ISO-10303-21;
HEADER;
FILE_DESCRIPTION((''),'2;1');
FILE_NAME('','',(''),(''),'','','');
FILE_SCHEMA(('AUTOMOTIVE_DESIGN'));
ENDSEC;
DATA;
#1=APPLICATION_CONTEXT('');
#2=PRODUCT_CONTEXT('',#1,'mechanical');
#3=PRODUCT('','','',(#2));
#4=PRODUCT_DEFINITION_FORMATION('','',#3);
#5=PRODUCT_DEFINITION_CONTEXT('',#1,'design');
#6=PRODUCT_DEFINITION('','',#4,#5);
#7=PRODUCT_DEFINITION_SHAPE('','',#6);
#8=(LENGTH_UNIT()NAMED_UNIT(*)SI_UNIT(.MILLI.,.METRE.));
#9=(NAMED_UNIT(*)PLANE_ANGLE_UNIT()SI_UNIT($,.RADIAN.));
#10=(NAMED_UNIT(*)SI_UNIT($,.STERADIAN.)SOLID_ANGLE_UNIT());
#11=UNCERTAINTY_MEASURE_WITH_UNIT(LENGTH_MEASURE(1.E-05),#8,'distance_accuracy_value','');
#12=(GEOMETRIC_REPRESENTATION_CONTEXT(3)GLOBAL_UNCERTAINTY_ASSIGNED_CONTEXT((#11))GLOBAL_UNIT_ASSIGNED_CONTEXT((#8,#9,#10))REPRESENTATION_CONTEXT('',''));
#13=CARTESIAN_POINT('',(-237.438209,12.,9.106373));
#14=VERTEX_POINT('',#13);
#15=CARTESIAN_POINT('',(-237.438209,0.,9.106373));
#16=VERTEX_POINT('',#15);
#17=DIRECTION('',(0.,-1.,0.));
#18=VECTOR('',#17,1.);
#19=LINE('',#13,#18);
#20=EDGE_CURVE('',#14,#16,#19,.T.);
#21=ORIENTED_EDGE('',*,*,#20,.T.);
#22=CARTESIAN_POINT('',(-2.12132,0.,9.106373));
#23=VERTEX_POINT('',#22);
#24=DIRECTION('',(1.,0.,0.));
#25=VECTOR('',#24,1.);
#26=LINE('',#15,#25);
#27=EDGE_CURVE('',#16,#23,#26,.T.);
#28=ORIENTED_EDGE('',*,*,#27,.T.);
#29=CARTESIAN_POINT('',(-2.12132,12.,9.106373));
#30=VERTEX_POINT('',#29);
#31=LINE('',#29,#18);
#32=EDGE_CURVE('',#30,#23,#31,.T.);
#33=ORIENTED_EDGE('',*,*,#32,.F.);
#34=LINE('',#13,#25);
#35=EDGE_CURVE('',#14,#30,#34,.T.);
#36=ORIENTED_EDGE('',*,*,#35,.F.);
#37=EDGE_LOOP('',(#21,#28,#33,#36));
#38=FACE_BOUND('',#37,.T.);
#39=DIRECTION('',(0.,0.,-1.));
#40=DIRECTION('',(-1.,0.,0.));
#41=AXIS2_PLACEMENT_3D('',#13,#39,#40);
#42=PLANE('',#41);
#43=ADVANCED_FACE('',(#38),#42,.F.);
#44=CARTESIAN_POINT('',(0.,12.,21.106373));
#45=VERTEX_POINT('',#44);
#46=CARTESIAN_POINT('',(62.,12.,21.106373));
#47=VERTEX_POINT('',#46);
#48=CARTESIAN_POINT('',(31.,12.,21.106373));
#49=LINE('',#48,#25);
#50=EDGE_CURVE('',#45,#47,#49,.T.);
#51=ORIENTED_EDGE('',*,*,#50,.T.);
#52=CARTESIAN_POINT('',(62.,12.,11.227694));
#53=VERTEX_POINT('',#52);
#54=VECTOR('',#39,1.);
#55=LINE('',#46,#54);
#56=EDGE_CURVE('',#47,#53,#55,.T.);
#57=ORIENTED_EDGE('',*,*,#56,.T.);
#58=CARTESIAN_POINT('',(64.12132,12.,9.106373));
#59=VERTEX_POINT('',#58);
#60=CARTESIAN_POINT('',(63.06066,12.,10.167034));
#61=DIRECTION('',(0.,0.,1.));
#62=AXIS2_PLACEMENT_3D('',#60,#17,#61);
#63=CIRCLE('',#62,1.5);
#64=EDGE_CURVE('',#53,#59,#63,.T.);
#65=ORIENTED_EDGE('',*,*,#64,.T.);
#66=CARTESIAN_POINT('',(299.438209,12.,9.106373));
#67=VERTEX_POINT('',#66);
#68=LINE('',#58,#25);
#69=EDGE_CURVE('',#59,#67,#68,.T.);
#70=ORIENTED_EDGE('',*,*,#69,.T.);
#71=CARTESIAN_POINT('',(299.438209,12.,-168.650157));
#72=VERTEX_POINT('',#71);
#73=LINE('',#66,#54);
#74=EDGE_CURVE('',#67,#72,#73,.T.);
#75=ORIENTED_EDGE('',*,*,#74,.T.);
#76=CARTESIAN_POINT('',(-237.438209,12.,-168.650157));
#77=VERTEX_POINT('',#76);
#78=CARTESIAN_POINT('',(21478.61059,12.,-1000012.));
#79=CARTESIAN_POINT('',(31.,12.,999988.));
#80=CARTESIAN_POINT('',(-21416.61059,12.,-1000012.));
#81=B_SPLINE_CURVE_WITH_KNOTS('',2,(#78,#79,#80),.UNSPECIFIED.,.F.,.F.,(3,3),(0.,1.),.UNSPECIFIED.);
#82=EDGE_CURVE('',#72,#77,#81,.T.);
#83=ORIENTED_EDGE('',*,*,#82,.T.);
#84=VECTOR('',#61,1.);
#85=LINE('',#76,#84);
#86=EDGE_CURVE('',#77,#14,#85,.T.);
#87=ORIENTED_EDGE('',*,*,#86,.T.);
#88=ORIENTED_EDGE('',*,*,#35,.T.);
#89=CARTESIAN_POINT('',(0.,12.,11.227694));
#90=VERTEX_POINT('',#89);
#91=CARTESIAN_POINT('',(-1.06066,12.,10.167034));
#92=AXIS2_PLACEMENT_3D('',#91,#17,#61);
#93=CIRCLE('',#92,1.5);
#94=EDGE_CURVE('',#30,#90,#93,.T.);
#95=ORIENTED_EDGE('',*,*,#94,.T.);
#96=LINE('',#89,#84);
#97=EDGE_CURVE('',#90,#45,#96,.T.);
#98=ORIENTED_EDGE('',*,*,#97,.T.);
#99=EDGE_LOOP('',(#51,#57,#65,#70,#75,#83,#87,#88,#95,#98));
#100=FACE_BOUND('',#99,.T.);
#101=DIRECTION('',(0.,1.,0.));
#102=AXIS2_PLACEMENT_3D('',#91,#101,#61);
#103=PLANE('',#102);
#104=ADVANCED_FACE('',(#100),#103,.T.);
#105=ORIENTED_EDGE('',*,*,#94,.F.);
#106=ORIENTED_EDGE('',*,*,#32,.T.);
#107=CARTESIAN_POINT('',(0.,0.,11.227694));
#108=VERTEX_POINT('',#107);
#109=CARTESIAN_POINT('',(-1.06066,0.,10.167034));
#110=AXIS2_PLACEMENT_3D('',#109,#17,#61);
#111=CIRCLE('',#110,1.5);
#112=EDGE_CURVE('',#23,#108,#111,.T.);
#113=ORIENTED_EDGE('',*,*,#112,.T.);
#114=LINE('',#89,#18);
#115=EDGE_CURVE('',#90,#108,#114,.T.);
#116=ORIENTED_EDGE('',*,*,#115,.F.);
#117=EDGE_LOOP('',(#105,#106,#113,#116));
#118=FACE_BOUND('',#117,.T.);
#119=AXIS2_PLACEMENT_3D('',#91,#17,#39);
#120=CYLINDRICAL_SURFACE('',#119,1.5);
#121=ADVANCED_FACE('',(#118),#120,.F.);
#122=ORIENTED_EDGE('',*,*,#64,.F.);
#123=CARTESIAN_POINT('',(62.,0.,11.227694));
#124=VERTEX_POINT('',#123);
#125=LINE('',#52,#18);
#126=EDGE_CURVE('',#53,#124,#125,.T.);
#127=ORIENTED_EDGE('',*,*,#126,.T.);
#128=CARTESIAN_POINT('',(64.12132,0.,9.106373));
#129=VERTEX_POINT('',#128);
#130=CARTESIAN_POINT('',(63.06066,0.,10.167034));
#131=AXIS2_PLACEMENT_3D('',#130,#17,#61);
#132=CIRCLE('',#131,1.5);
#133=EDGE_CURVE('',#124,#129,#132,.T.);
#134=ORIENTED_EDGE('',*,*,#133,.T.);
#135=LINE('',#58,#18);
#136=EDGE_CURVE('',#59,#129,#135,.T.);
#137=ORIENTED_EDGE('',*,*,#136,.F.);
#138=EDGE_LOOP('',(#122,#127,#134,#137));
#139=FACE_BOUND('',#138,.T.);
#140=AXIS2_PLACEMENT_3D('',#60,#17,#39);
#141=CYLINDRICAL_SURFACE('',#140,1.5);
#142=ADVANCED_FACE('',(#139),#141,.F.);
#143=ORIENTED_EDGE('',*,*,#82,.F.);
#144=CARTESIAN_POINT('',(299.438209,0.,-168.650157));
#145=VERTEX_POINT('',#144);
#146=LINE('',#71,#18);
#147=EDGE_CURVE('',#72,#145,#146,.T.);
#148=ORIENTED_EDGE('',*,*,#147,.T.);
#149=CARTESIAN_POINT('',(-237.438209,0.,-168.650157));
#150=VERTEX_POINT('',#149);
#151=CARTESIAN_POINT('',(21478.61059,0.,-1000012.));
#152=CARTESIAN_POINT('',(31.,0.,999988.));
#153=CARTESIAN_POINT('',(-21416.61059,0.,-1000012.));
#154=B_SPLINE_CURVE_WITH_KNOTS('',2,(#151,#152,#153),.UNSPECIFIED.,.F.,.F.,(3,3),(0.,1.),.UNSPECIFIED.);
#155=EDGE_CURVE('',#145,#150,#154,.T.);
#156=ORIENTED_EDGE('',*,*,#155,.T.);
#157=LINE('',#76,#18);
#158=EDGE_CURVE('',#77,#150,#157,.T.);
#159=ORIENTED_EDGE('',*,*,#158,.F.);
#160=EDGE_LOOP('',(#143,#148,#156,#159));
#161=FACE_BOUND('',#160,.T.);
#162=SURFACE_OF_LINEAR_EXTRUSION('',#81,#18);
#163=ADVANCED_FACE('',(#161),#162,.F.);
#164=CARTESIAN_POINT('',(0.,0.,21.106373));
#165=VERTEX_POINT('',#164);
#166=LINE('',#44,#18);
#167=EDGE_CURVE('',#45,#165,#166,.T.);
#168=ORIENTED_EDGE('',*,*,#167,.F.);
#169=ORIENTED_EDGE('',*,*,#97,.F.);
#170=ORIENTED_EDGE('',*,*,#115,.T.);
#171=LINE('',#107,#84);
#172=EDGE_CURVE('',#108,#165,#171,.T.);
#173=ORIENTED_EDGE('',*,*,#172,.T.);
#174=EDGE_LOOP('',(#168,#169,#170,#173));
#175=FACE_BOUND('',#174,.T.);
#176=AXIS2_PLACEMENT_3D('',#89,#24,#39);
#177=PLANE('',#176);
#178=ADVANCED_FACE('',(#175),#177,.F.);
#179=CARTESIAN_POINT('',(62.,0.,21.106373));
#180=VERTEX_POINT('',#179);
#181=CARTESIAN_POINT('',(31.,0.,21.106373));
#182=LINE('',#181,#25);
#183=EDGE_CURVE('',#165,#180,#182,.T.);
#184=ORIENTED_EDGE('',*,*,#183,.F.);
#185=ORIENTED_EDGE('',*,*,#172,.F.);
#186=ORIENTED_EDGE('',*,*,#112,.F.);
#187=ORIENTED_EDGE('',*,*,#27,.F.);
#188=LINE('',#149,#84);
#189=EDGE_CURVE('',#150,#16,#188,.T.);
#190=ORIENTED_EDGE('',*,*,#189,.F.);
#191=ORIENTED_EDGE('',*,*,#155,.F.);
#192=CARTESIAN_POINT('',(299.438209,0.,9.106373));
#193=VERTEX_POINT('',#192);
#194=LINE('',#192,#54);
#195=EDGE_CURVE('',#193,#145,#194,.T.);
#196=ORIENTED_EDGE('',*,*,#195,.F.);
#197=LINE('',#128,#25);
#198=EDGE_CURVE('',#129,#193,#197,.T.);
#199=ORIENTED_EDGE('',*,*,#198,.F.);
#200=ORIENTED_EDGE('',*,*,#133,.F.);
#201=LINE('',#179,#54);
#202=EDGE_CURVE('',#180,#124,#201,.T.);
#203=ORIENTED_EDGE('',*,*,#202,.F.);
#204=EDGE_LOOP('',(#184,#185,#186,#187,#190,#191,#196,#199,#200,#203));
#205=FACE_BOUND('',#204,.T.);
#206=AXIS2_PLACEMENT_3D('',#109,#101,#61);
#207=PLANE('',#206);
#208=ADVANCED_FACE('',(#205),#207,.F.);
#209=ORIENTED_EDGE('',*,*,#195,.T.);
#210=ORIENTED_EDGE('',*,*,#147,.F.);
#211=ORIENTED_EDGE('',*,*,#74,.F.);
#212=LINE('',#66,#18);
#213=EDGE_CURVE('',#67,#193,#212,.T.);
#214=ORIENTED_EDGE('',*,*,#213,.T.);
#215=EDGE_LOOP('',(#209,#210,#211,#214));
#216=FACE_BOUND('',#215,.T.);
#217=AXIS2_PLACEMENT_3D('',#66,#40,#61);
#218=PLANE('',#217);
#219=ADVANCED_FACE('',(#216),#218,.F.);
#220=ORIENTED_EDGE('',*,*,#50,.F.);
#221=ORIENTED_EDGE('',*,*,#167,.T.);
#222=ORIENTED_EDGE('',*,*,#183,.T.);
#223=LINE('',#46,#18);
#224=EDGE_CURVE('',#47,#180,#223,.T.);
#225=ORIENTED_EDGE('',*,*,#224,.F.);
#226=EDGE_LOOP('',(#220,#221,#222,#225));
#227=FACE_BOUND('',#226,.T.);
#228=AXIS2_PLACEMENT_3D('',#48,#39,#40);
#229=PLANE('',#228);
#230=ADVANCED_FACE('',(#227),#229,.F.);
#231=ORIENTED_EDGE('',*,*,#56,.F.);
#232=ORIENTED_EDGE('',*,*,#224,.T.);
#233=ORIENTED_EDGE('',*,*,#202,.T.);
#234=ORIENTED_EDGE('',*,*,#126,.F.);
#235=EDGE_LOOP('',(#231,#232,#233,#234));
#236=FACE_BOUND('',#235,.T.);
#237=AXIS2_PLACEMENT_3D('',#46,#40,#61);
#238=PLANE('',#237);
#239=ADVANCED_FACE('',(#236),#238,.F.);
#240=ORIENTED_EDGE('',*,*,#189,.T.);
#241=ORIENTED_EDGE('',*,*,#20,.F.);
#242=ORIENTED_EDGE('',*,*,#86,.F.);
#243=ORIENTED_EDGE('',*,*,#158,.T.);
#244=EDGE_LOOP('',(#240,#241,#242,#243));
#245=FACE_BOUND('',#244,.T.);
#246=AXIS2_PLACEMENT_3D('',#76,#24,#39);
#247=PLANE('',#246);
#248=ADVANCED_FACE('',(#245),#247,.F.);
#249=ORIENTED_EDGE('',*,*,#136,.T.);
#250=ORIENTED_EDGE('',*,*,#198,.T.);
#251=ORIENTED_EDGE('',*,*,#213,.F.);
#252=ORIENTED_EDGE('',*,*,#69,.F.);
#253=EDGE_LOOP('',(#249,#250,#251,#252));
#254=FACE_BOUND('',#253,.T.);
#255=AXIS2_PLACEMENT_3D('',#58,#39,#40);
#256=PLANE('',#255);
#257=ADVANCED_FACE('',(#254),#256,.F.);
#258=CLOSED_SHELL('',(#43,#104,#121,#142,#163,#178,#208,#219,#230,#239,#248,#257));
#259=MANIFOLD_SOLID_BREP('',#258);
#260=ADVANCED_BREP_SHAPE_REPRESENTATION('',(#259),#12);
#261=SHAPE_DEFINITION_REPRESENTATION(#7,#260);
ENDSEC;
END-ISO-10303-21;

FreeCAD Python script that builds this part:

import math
import FreeCAD as App
import Part
import Sketcher

V = App.Vector

doc = App.newDocument("Part")
body = doc.addObject("PartDesign::Body", "Body")

sketch1 = body.newObject("Sketcher::SketchObject", "Sketch")
sketch1.AttachmentSupport = (doc.getObject("XZ_Plane"), [""])
sketch1.MapMode = "FlatFace"
sketch1.addGeometry(Part.LineSegment(V(-237.438209, -168.650157, 0), V(-237.438209, 9.106373, 0)), False)
sketch1.addGeometry(Part.LineSegment(V(-237.438209, 9.106373, 0), V(-2.12132, 9.106373, 0)), False)
sketch1.addGeometry(Part.ArcOfCircle(Part.Circle(V(-1.06066, 10.167034, 0), V(0, 0, 1), 1.5), math.radians(-135), math.radians(45)), False)
sketch1.addGeometry(Part.LineSegment(V(0, 11.227694, 0), V(0, 21.106373, 0)), False)
sketch1.addGeometry(Part.LineSegment(V(0, 21.106373, 0), V(62, 21.106373, 0)), False)
sketch1.addGeometry(Part.LineSegment(V(62, 21.106373, 0), V(62, 11.227694, 0)), False)
sketch1.addGeometry(Part.ArcOfCircle(Part.Circle(V(63.06066, 10.167034, 0), V(0, 0, 1), 1.5), math.radians(135), math.radians(315)), False)
sketch1.addGeometry(Part.LineSegment(V(64.12132, 9.106373, 0), V(299.438209, 9.106373, 0)), False)
sketch1.addGeometry(Part.LineSegment(V(299.438209, 9.106373, 0), V(299.438209, -168.650157, 0)), False)
sketch1.addGeometry(Part.BSplineCurve([V(299.438209, -168.650157, 0), V(31, 144.650157, 0), V(-237.438209, -168.650157, 0)], [3, 3], [0, 2], False, 2, [1, 1, 1], False), False)
sketch1.addConstraint(Sketcher.Constraint("Block", 9))
sketch1.addConstraint(Sketcher.Constraint("Coincident", 0, 2, 1, 1))
sketch1.addConstraint(Sketcher.Constraint("Coincident", 1, 2, 2, 1))
sketch1.addConstraint(Sketcher.Constraint("Coincident", 2, 2, 3, 1))
sketch1.addConstraint(Sketcher.Constraint("Coincident", 3, 2, 4, 1))
sketch1.addConstraint(Sketcher.Constraint("Coincident", 4, 2, 5, 1))
sketch1.addConstraint(Sketcher.Constraint("Coincident", 5, 2, 6, 1))
sketch1.addConstraint(Sketcher.Constraint("Coincident", 6, 2, 7, 1))
sketch1.addConstraint(Sketcher.Constraint("Coincident", 7, 2, 8, 1))
sketch1.addConstraint(Sketcher.Constraint("Coincident", 8, 2, 9, 1))
sketch1.addConstraint(Sketcher.Constraint("Coincident", 9, 2, 0, 1))
sketch1.addConstraint(Sketcher.Constraint("Vertical", 0))
sketch1.addConstraint(Sketcher.Constraint("Horizontal", 1))
sketch1.addConstraint(Sketcher.Constraint("Vertical", 3))
sketch1.addConstraint(Sketcher.Constraint("Horizontal", 4))
sketch1.addConstraint(Sketcher.Constraint("Vertical", 5))
sketch1.addConstraint(Sketcher.Constraint("Horizontal", 7))
sketch1.addConstraint(Sketcher.Constraint("Vertical", 8))
sketch1.addConstraint(Sketcher.Constraint("Equal", 2, 6))
sketch1.addConstraint(Sketcher.Constraint("PointOnObject", 2, 2, -2))
sketch1.addConstraint(Sketcher.Constraint("Horizontal", 2, 3, 6, 3))
sketch1.addConstraint(Sketcher.Constraint("Horizontal", 2, 2, 5, 2))
sketch1.addConstraint(Sketcher.Constraint("Horizontal", 1, 2, 6, 2))
sketch1.addConstraint(Sketcher.Constraint("Equal", 1, 7))
sketch1.addConstraint(Sketcher.Constraint("Radius", 2, 1.5))
sketch1.addConstraint(Sketcher.Constraint("DistanceY", 1, 2, 3, 2, 12.0))
sketch1.addConstraint(Sketcher.Constraint("DistanceX", 1, 1, 1, 2, 235.316889))
sketch1.addConstraint(Sketcher.Constraint("DistanceY", 0, 1, 0, 2, 177.75653))
sketch1.addConstraint(Sketcher.Constraint("DistanceX", 2, 3, -1, 1, 1.06066))
pad1 = body.newObject("PartDesign::Pad", "Pad")
pad1.Profile = sketch1
pad1.Length = 12
pad1.Reversed = True

doc.recompute()
